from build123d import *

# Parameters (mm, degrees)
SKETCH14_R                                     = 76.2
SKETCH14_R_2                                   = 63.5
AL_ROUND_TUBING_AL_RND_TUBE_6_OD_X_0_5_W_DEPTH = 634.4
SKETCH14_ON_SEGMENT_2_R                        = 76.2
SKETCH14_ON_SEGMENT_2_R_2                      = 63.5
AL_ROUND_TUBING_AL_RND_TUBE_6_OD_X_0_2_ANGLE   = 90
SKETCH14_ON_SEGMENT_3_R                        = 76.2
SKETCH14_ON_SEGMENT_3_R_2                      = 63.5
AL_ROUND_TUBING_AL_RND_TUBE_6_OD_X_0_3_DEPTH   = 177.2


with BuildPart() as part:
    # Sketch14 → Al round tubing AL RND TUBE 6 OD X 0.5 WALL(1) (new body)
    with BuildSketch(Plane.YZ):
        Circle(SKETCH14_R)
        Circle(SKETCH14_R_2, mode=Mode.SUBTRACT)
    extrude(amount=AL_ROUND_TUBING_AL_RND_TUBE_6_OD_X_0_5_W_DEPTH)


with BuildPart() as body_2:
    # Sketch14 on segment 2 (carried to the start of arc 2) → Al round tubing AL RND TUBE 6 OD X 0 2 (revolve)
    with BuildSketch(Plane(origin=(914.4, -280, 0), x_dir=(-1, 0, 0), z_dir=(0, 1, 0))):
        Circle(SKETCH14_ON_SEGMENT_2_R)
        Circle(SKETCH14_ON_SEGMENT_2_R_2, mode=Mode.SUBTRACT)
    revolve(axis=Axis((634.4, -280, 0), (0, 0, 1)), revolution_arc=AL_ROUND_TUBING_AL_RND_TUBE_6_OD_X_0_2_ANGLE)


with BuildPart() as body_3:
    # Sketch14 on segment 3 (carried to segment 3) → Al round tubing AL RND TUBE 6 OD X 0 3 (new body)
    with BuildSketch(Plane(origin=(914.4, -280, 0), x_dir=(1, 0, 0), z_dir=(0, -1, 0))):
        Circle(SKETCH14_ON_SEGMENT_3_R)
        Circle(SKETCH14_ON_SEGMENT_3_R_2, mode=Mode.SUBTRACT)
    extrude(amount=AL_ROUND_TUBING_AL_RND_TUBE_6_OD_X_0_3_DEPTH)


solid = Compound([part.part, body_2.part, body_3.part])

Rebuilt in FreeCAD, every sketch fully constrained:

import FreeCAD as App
import Part
import Sketcher

V = App.Vector
Q = App.Units.Quantity

doc = App.newDocument("Part")
body = doc.addObject("PartDesign::Body", "Body")

# Sketch on YZ plane
sketch1 = body.newObject("Sketcher::SketchObject", "Sketch")
sketch1.AttachmentSupport = (doc.getObject("YZ_Plane"), [""])
sketch1.MapMode = "FlatFace"
sketch1.addGeometry(Part.Circle(V(0, 0, 0), V(0, 0, 1), 76), False)
sketch1.addGeometry(Part.Circle(V(0, 0, 0), V(0, 0, 1), 64), False)
sketch1.addConstraint(Sketcher.Constraint("Coincident", 0, 3, -1, 1))
sketch1.addConstraint(Sketcher.Constraint("Coincident", 1, 3, -1, 1))
sketch1.addConstraint(Sketcher.Constraint("Diameter", 1, Q("127 mm")))
sketch1.addConstraint(Sketcher.Constraint("Diameter", 0, Q("152.4 mm")))
pad1 = body.newObject("PartDesign::Pad", "Pad")
pad1.Profile = sketch1
pad1.Length = 634.4
body2 = doc.addObject("PartDesign::Body", "Body001")

# Sketch on XZ plane
sketch2 = body2.newObject("Sketcher::SketchObject", "Sketch001")
sketch2.AttachmentSupport = (doc.getObject("XZ_Plane001"), [""])
sketch2.MapMode = "FlatFace"
sketch2.AttachmentOffset = App.Placement(V(0, 0, 280), App.Rotation())
sketch2.addGeometry(Part.Circle(V(914, 0, 0), V(0, 0, 1), 76), False)
sketch2.addGeometry(Part.Circle(V(914, 0, 0), V(0, 0, 1), 64), False)
sketch2.addGeometry(Part.LineSegment(V(634, 0, 0), V(634, 10, 0)), True)  # axis
sketch2.addConstraint(Sketcher.Constraint("Vertical", 2))
sketch2.addConstraint(Sketcher.Constraint("Coincident", 1, 3, 0, 3))
sketch2.addConstraint(Sketcher.Constraint("PointOnObject", 0, 3, -1))
sketch2.addConstraint(Sketcher.Constraint("PointOnObject", 2, 1, -1))
sketch2.addConstraint(Sketcher.Constraint("Diameter", 1, Q("127 mm")))
sketch2.addConstraint(Sketcher.Constraint("Diameter", 0, Q("152.4 mm")))
sketch2.addConstraint(Sketcher.Constraint("DistanceY", 2, 1, 2, 2, Q("10 mm")))
sketch2.addConstraint(Sketcher.Constraint("DistanceX", 2, 1, 0, 3, Q("280 mm")))
sketch2.addConstraint(Sketcher.Constraint("DistanceX", -1, 1, 0, 3, Q("914.4 mm")))
revolution = body2.newObject("PartDesign::Revolution", "Revolution")
revolution.Profile = sketch2
revolution.ReferenceAxis = (sketch2, ["Axis0"])
revolution.Angle = 90
body3 = doc.addObject("PartDesign::Body", "Body002")

# Sketch on XZ plane
sketch3 = body3.newObject("Sketcher::SketchObject", "Sketch002")
sketch3.AttachmentSupport = (doc.getObject("XZ_Plane002"), [""])
sketch3.MapMode = "FlatFace"
sketch3.AttachmentOffset = App.Placement(V(0, 0, 280), App.Rotation())
sketch3.addGeometry(Part.Circle(V(914, 0, 0), V(0, 0, 1), 76), False)
sketch3.addGeometry(Part.Circle(V(914, 0, 0), V(0, 0, 1), 64), False)
sketch3.addConstraint(Sketcher.Constraint("Coincident", 1, 3, 0, 3))
sketch3.addConstraint(Sketcher.Constraint("PointOnObject", 0, 3, -1))
sketch3.addConstraint(Sketcher.Constraint("Diameter", 1, Q("127 mm")))
sketch3.addConstraint(Sketcher.Constraint("Diameter", 0, Q("152.4 mm")))
sketch3.addConstraint(Sketcher.Constraint("DistanceX", -1, 1, 0, 3, Q("914.4 mm")))
pad2 = body3.newObject("PartDesign::Pad", "Pad001")
pad2.Profile = sketch3
pad2.Length = 177.2

doc.recompute()
